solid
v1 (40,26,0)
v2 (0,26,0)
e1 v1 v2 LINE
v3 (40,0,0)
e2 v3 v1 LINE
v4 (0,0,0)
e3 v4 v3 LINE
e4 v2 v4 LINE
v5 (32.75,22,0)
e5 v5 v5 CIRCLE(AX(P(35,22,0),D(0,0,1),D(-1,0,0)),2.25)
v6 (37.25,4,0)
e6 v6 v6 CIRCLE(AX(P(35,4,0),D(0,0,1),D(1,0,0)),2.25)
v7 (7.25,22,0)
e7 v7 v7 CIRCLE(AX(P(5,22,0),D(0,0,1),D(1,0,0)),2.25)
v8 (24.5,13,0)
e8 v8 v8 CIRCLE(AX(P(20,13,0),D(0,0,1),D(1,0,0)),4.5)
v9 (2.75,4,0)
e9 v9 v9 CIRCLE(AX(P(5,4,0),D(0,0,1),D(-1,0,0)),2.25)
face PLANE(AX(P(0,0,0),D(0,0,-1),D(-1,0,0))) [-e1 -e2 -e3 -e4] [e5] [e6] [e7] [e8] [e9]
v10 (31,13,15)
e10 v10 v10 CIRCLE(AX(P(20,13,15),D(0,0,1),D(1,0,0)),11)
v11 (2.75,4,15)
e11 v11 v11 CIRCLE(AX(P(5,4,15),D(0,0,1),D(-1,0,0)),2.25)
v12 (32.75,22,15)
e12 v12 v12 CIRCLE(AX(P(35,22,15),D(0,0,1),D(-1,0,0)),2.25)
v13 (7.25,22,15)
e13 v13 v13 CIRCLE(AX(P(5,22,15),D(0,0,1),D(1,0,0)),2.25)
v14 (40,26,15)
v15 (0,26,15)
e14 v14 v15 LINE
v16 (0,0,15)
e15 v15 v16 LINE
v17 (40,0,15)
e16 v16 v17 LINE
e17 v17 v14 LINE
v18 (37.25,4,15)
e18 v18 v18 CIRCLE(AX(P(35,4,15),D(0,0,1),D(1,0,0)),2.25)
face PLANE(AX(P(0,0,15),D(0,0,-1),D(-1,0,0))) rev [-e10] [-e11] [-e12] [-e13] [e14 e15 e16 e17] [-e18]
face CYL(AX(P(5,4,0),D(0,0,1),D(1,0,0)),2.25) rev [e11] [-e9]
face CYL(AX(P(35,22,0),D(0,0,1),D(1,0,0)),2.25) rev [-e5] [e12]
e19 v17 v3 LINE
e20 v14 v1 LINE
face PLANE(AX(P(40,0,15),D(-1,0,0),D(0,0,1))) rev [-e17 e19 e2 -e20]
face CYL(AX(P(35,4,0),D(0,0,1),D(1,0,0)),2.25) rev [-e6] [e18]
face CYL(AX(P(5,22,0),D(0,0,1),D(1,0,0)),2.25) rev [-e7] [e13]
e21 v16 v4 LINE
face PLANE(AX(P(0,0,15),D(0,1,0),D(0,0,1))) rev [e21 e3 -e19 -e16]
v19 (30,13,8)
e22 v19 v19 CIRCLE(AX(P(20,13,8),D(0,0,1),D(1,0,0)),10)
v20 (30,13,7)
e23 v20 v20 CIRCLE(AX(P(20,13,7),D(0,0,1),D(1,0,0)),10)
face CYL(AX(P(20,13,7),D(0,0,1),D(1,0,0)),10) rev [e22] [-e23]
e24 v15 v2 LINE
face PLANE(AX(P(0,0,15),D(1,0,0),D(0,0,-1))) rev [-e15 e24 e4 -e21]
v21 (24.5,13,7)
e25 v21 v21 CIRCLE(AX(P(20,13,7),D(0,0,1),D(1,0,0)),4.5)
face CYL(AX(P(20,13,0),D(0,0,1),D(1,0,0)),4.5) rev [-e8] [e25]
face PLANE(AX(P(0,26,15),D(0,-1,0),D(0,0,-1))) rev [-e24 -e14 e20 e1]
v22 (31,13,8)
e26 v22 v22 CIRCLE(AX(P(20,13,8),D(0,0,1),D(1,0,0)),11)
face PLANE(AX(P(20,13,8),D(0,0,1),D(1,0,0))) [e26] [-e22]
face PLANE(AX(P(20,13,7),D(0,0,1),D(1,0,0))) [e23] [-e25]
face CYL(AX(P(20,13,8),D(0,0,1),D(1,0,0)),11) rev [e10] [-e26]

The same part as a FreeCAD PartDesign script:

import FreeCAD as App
import Part
import Sketcher
from FreeCAD import Vector
Q = App.Units.Quantity

doc = App.newDocument("Part")
body = doc.addObject("PartDesign::Body", "Body")

# Sketch on XY plane
sketch1 = body.newObject("Sketcher::SketchObject", "Sketch")
sketch1.AttachmentSupport = (doc.getObject("XY_Plane"), [""])
sketch1.MapMode = "FlatFace"
sketch1.addGeometry([
    Part.LineSegment(Vector(0, 26, 0), Vector(0, 0, 0)),
    Part.LineSegment(Vector(0, 0, 0), Vector(40, 0, 0)),
    Part.LineSegment(Vector(40, 0, 0), Vector(40, 26, 0)),
    Part.LineSegment(Vector(40, 26, 0), Vector(0, 26, 0)),
], False)
sketch1.addConstraint([
    Sketcher.Constraint("Coincident", 0, 2, 1, 1),
    Sketcher.Constraint("Coincident", 1, 2, 2, 1),
    Sketcher.Constraint("Coincident", 2, 2, 3, 1),
    Sketcher.Constraint("Coincident", 3, 2, 0, 1),
    Sketcher.Constraint("Vertical", 0),
    Sketcher.Constraint("Horizontal", 1),
    Sketcher.Constraint("Vertical", 2),
    Sketcher.Constraint("Horizontal", 3),
    Sketcher.Constraint("Coincident", 0, 2, -1, 1),
    Sketcher.Constraint("DistanceX", 1, 1, 1, 2, Q("40 mm")),
    Sketcher.Constraint("DistanceY", 0, 2, 0, 1, Q("26 mm")),
])
pad1 = body.newObject("PartDesign::Pad", "Pad")
pad1.Profile = sketch1
pad1.Length = 15

# Sketch on XY plane
sketch2 = body.newObject("Sketcher::SketchObject", "Sketch001")
sketch2.AttachmentSupport = (doc.getObject("XY_Plane"), [""])
sketch2.MapMode = "FlatFace"
sketch2.AttachmentOffset = App.Placement(Vector(0, 0, 15), App.Rotation())
sketch2.addGeometry(Part.Circle(Vector(20, 13, 0), Vector(0, 0, 1), 11), False)
sketch2.addConstraint([
    Sketcher.Constraint("Diameter", 0, Q("22 mm")),
    Sketcher.Constraint("DistanceX", -1, 1, 0, 3, Q("20 mm")),
    Sketcher.Constraint("DistanceY", -1, 1, 0, 3, Q("13 mm")),
])
pocket1 = body.newObject("PartDesign::Pocket", "Pocket")
pocket1.Profile = sketch2
pocket1.Length = 7

# Sketch on XY plane
sketch3 = body.newObject("Sketcher::SketchObject", "Sketch002")
sketch3.AttachmentSupport = (doc.getObject("XY_Plane"), [""])
sketch3.MapMode = "FlatFace"
sketch3.AttachmentOffset = App.Placement(Vector(0, 0, 8), App.Rotation())
sketch3.addGeometry(Part.Circle(Vector(20, 13, 0), Vector(0, 0, 1), 10), False)
sketch3.addConstraint([
    Sketcher.Constraint("Diameter", 0, Q("20 mm")),
    Sketcher.Constraint("DistanceX", -1, 1, 0, 3, Q("20 mm")),
    Sketcher.Constraint("DistanceY", -1, 1, 0, 3, Q("13 mm")),
])
pocket2 = body.newObject("PartDesign::Pocket", "Pocket001")
pocket2.Profile = sketch3
pocket2.Length = 1

# Sketch on XY plane
sketch4 = body.newObject("Sketcher::SketchObject", "Sketch003")
sketch4.AttachmentSupport = (doc.getObject("XY_Plane"), [""])
sketch4.MapMode = "FlatFace"
sketch4.AttachmentOffset = App.Placement(Vector(0, 0, 7), App.Rotation())
sketch4.addGeometry(Part.Circle(Vector(20, 13, 0), Vector(0, 0, 1), 4.5), False)
sketch4.addConstraint([
    Sketcher.Constraint("Diameter", 0, Q("9 mm")),
    Sketcher.Constraint("DistanceX", -1, 1, 0, 3, Q("20 mm")),
    Sketcher.Constraint("DistanceY", -1, 1, 0, 3, Q("13 mm")),
])
pocket3 = body.newObject("PartDesign::Pocket", "Pocket002")
pocket3.Profile = sketch4
pocket3.Length = 7

# Sketch on XY plane
sketch5 = body.newObject("Sketcher::SketchObject", "Sketch004")
sketch5.AttachmentSupport = (doc.getObject("XY_Plane"), [""])
sketch5.MapMode = "FlatFace"
sketch5.AttachmentOffset = App.Placement(Vector(0, 0, 15), App.Rotation())
sketch5.addGeometry([
    Part.Circle(Vector(5, 22, 0), Vector(0, 0, 1), 2.2),
    Part.Circle(Vector(5, 4, 0), Vector(0, 0, 1), 2.2),
    Part.Circle(Vector(35, 4, 0), Vector(0, 0, 1), 2.2),
    Part.Circle(Vector(35, 22, 0), Vector(0, 0, 1), 2.2),
], False)
sketch5.addConstraint([
    Sketcher.Constraint("Equal", 0, 1),
    Sketcher.Constraint("Equal", 1, 2),
    Sketcher.Constraint("Equal", 2, 3),
    Sketcher.Constraint("Horizontal", 1, 3, 2, 3),
    Sketcher.Constraint("Horizontal", 0, 3, 3, 3),
    Sketcher.Constraint("Vertical", 0, 3, 1, 3),
    Sketcher.Constraint("Vertical", 2, 3, 3, 3),
    Sketcher.Constraint("Diameter", 0, Q("4.5 mm")),
    Sketcher.Constraint("DistanceX", -1, 1, 0, 3, Q("5 mm")),
    Sketcher.Constraint("DistanceY", -1, 1, 0, 3, Q("22 mm")),
    Sketcher.Constraint("DistanceY", -1, 1, 1, 3, Q("4 mm")),
    Sketcher.Constraint("DistanceX", -1, 1, 2, 3, Q("35 mm")),
])
pocket4 = body.newObject("PartDesign::Pocket", "Pocket003")
pocket4.Profile = sketch5
pocket4.Type = "ThroughAll"

doc.recompute()
